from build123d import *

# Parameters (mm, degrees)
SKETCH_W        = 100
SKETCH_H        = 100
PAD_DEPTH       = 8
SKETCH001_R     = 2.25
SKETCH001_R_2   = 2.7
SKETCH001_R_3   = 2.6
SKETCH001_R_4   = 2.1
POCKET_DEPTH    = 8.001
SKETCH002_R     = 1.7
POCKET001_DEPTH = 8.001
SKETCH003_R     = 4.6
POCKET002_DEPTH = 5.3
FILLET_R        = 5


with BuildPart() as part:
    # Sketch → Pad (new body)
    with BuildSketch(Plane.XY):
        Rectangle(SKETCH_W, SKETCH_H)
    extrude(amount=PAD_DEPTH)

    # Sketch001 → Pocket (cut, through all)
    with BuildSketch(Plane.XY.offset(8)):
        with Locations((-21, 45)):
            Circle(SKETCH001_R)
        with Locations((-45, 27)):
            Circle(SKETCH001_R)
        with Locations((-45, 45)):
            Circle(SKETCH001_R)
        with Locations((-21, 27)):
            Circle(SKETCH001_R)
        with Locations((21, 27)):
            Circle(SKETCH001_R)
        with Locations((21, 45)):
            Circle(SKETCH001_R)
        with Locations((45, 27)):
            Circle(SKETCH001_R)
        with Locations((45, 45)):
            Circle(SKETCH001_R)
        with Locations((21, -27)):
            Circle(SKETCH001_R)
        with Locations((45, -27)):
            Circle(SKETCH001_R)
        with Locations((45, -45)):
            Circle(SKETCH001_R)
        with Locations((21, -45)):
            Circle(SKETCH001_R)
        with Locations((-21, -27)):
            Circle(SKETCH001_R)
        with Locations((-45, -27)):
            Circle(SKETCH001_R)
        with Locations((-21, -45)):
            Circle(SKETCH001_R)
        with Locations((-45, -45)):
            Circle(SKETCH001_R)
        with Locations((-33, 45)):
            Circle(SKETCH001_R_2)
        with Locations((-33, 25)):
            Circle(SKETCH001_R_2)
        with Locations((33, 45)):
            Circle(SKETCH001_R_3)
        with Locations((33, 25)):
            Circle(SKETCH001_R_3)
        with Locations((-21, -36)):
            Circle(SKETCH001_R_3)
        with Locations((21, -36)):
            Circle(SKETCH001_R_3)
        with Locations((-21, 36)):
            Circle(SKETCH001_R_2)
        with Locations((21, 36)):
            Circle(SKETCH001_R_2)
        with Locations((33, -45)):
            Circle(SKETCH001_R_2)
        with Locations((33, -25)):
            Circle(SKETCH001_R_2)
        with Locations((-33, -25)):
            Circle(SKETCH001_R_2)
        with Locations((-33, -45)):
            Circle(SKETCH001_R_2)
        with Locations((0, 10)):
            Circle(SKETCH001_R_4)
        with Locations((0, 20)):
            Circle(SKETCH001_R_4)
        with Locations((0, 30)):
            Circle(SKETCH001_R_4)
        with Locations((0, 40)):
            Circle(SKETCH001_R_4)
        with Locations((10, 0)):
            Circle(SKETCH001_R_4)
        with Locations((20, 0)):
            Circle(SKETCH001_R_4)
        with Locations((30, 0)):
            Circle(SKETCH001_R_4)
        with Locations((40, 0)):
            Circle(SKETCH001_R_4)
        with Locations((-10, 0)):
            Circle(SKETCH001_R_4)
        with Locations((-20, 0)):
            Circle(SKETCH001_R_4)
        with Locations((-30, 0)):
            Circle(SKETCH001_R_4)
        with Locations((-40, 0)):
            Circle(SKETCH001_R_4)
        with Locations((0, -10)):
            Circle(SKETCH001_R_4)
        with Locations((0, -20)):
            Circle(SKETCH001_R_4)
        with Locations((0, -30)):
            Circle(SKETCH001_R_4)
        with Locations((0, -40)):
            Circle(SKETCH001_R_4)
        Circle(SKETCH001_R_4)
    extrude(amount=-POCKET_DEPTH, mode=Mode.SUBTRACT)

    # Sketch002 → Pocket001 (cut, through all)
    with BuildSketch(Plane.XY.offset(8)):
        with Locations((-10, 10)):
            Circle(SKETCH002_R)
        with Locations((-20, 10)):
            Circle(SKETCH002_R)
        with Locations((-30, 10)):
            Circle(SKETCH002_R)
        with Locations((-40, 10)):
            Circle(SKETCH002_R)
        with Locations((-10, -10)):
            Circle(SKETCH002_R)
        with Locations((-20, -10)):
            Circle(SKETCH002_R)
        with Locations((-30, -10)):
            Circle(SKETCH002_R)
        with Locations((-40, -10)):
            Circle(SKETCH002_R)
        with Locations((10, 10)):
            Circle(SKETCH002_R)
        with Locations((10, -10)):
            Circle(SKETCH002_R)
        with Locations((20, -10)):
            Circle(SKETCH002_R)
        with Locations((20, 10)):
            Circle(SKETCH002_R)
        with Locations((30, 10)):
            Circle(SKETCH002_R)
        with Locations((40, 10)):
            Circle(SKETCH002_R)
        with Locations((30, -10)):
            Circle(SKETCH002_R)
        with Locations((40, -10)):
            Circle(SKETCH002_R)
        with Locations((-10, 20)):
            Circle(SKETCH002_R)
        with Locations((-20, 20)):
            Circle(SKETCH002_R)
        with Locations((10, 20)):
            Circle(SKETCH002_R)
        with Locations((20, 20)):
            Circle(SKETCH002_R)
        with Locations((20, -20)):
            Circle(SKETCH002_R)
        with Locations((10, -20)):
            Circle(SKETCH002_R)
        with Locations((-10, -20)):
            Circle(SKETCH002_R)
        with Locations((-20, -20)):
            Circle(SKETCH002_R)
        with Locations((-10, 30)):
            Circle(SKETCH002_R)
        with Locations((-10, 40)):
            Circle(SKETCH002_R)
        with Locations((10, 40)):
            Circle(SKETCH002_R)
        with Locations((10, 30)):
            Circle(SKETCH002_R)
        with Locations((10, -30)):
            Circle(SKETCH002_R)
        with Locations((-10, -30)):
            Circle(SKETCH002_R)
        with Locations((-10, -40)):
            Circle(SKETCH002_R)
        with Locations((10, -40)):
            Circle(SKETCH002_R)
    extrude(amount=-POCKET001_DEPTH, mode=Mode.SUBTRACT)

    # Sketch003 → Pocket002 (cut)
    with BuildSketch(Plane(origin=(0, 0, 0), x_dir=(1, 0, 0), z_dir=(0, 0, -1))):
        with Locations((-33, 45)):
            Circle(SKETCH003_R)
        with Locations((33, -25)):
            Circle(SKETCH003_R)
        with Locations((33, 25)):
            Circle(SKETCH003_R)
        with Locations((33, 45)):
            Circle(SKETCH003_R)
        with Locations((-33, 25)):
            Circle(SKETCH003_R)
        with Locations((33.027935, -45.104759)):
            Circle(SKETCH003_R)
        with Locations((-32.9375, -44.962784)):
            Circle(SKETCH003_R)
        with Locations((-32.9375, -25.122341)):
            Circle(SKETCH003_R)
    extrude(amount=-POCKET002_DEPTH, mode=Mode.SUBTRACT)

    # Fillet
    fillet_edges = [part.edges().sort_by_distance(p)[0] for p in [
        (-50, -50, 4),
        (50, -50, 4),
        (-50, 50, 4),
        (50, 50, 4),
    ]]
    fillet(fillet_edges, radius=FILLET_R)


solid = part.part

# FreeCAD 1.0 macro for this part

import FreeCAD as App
import Part
import Sketcher

V = App.Vector
Q = App.Units.Quantity


def edges_at(feature, points):
    """Names of the edges that pass closest to the given points."""
    edges = feature.Shape.Edges
    near = lambda p: min(range(len(edges)), key=lambda i: edges[i].distToShape(Part.Vertex(*p))[0])
    return sorted({f"Edge{near(p) + 1}" for p in points})


def add_polygon(sketch, points):
    """Adds a closed chain of lines whose ends are joined by coincident constraints."""
    first, n = sketch.GeometryCount, len(points)
    for a, b in zip(points, points[1:] + points[:1]):
        sketch.addGeometry(Part.LineSegment(App.Vector(*a, 0), App.Vector(*b, 0)), False)
    for i in range(n):
        sketch.addConstraint(Sketcher.Constraint("Coincident", first + i, 2, first + (i + 1) % n, 1))

doc = App.newDocument("Part")
body = doc.addObject("PartDesign::Body", "Body")

sketch1 = body.newObject("Sketcher::SketchObject", "Sketch")
sketch1.AttachmentSupport = (doc.getObject("XY_Plane"), [""])
sketch1.MapMode = "FlatFace"
add_polygon(sketch1, [(-50, 50), (-50, -50), (50, -50), (50, 50)])
sketch1.addConstraint([
    Sketcher.Constraint("Vertical", 0),
    Sketcher.Constraint("Horizontal", 1),
    Sketcher.Constraint("Vertical", 2),
    Sketcher.Constraint("Horizontal", 3),
    Sketcher.Constraint("Symmetric", 0, 2, 2, 2, -1, 1),
    Sketcher.Constraint("Equal", 3, 0),
    Sketcher.Constraint("DistanceX", 1, 1, 1, 2, Q("100 mm")),
])
pad1 = body.newObject("PartDesign::Pad", "Pad")
pad1.Profile = sketch1
pad1.Length = 8

sketch2 = body.newObject("Sketcher::SketchObject", "Sketch001")
sketch2.AttachmentSupport = (doc.getObject("XY_Plane"), [""])
sketch2.MapMode = "FlatFace"
sketch2.AttachmentOffset = App.Placement(V(0, 0, 8), App.Rotation())
sketch2.addGeometry([
    Part.Circle(V(-21, 45, 0), V(0, 0, 1), 2.25),
    Part.Circle(V(-45, 27, 0), V(0, 0, 1), 2.25),
    Part.Circle(V(-45, 45, 0), V(0, 0, 1), 2.25),
    Part.Circle(V(-21, 27, 0), V(0, 0, 1), 2.25),
    Part.Circle(V(21, 27, 0), V(0, 0, 1), 2.25),
    Part.Circle(V(21, 45, 0), V(0, 0, 1), 2.25),
    Part.Circle(V(45, 27, 0), V(0, 0, 1), 2.25),
    Part.Circle(V(45, 45, 0), V(0, 0, 1), 2.25),
    Part.Circle(V(21, -27, 0), V(0, 0, 1), 2.25),
    Part.Circle(V(45, -27, 0), V(0, 0, 1), 2.25),
    Part.Circle(V(45, -45, 0), V(0, 0, 1), 2.25),
    Part.Circle(V(21, -45, 0), V(0, 0, 1), 2.25),
    Part.Circle(V(-21, -27, 0), V(0, 0, 1), 2.25),
    Part.Circle(V(-45, -27, 0), V(0, 0, 1), 2.25),
    Part.Circle(V(-21, -45, 0), V(0, 0, 1), 2.25),
    Part.Circle(V(-45, -45, 0), V(0, 0, 1), 2.25),
    Part.Circle(V(-33, 45, 0), V(0, 0, 1), 2.7),
    Part.Circle(V(-33, 25, 0), V(0, 0, 1), 2.7),
    Part.Circle(V(33, 45, 0), V(0, 0, 1), 2.6),
    Part.Circle(V(33, 25, 0), V(0, 0, 1), 2.6),
    Part.Circle(V(-21, -36, 0), V(0, 0, 1), 2.6),
    Part.Circle(V(21, -36, 0), V(0, 0, 1), 2.6),
    Part.Circle(V(-21, 36, 0), V(0, 0, 1), 2.7),
    Part.Circle(V(21, 36, 0), V(0, 0, 1), 2.7),
    Part.Circle(V(33, -45, 0), V(0, 0, 1), 2.7),
    Part.Circle(V(33, -25, 0), V(0, 0, 1), 2.7),
    Part.Circle(V(-33, -25, 0), V(0, 0, 1), 2.7),
    Part.Circle(V(-33, -45, 0), V(0, 0, 1), 2.7),
    Part.Circle(V(0, 10, 0), V(0, 0, 1), 2.1),
    Part.Circle(V(0, 20, 0), V(0, 0, 1), 2.1),
    Part.Circle(V(0, 30, 0), V(0, 0, 1), 2.1),
    Part.Circle(V(0, 40, 0), V(0, 0, 1), 2.1),
    Part.Circle(V(10, 0, 0), V(0, 0, 1), 2.1),
    Part.Circle(V(20, 0, 0), V(0, 0, 1), 2.1),
    Part.Circle(V(30, 0, 0), V(0, 0, 1), 2.1),
    Part.Circle(V(40, 0, 0), V(0, 0, 1), 2.1),
    Part.Circle(V(-10, 0, 0), V(0, 0, 1), 2.1),
    Part.Circle(V(-20, 0, 0), V(0, 0, 1), 2.1),
    Part.Circle(V(-30, 0, 0), V(0, 0, 1), 2.1),
    Part.Circle(V(-40, 0, 0), V(0, 0, 1), 2.1),
    Part.Circle(V(0, -10, 0), V(0, 0, 1), 2.1),
    Part.Circle(V(0, -20, 0), V(0, 0, 1), 2.1),
    Part.Circle(V(0, -30, 0), V(0, 0, 1), 2.1),
    Part.Circle(V(0, -40, 0), V(0, 0, 1), 2.1),
    Part.Circle(V(0, 0, 0), V(0, 0, 1), 2.1),
], False)
sketch2.addConstraint([
    Sketcher.Constraint("Coincident", 44, 3, -1, 1),
    Sketcher.Constraint("Equal", 0, 1),
    Sketcher.Constraint("Equal", 1, 2),
    Sketcher.Constraint("Equal", 2, 3),
    Sketcher.Constraint("Equal", 3, 4),
    Sketcher.Constraint("Equal", 4, 5),
    Sketcher.Constraint("Equal", 5, 6),
    Sketcher.Constraint("Equal", 6, 7),
    Sketcher.Constraint("Equal", 7, 8),
    Sketcher.Constraint("Equal", 8, 9),
    Sketcher.Constraint("Equal", 9, 10),
    Sketcher.Constraint("Equal", 10, 11),
    Sketcher.Constraint("Equal", 11, 12),
    Sketcher.Constraint("Equal", 12, 13),
    Sketcher.Constraint("Equal", 13, 14),
    Sketcher.Constraint("Equal", 14, 15),
    Sketcher.Constraint("Equal", 16, 17),
    Sketcher.Constraint("Equal", 18, 19),
    Sketcher.Constraint("Equal", 19, 20),
    Sketcher.Constraint("Equal", 20, 21),
    Sketcher.Constraint("Equal", 17, 22),
    Sketcher.Constraint("Equal", 22, 23),
    Sketcher.Constraint("Equal", 23, 24),
    Sketcher.Constraint("Equal", 24, 25),
    Sketcher.Constraint("Equal", 25, 26),
    Sketcher.Constraint("Equal", 26, 27),
    Sketcher.Constraint("Equal", 28, 29),
    Sketcher.Constraint("Equal", 29, 30),
    Sketcher.Constraint("Equal", 30, 31),
    Sketcher.Constraint("Equal", 31, 32),
    Sketcher.Constraint("Equal", 32, 33),
    Sketcher.Constraint("Equal", 33, 34),
    Sketcher.Constraint("Equal", 34, 35),
    Sketcher.Constraint("Equal", 35, 36),
    Sketcher.Constraint("Equal", 36, 37),
    Sketcher.Constraint("Equal", 37, 38),
    Sketcher.Constraint("Equal", 38, 39),
    Sketcher.Constraint("Equal", 39, 40),
    Sketcher.Constraint("Equal", 40, 41),
    Sketcher.Constraint("Equal", 41, 42),
    Sketcher.Constraint("Equal", 42, 43),
    Sketcher.Constraint("Equal", 43, 44),
    Sketcher.Constraint("Symmetric", 3, 3, 8, 3, -1, 1),
    Sketcher.Constraint("Symmetric", 1, 3, 9, 3, -1, 1),
    Sketcher.Constraint("Symmetric", 2, 3, 10, 3, -1, 1),
    Sketcher.Constraint("Symmetric", 0, 3, 11, 3, -1, 1),
    Sketcher.Constraint("Symmetric", 4, 3, 12, 3, -1, 1),
    Sketcher.Constraint("Symmetric", 6, 3, 13, 3, -1, 1),
    Sketcher.Constraint("Symmetric", 5, 3, 14, 3, -1, 1),
    Sketcher.Constraint("Symmetric", 7, 3, 15, 3, -1, 1),
    Sketcher.Constraint("Symmetric", 21, 3, 22, 3, -1, 1),
    Sketcher.Constraint("Symmetric", 20, 3, 23, 3, -1, 1),
    Sketcher.Constraint("Symmetric", 16, 3, 24, 3, -1, 1),
    Sketcher.Constraint("Symmetric", 17, 3, 25, 3, -1, 1),
    Sketcher.Constraint("Symmetric", 19, 3, 26, 3, -1, 1),
    Sketcher.Constraint("Symmetric", 18, 3, 27, 3, -1, 1),
    Sketcher.Constraint("Symmetric", 32, 3, 36, 3, -1, 1),
    Sketcher.Constraint("Symmetric", 33, 3, 37, 3, -1, 1),
    Sketcher.Constraint("Symmetric", 34, 3, 38, 3, -1, 1),
    Sketcher.Constraint("Symmetric", 35, 3, 39, 3, -1, 1),
    Sketcher.Constraint("Symmetric", 28, 3, 40, 3, -1, 1),
    Sketcher.Constraint("Symmetric", 29, 3, 41, 3, -1, 1),
    Sketcher.Constraint("Symmetric", 30, 3, 42, 3, -1, 1),
    Sketcher.Constraint("Symmetric", 31, 3, 43, 3, -1, 1),
    Sketcher.Constraint("Symmetric", 3, 3, 4, 3, -2),
    Sketcher.Constraint("Symmetric", 0, 3, 5, 3, -2),
    Sketcher.Constraint("Symmetric", 1, 3, 6, 3, -2),
    Sketcher.Constraint("Symmetric", 2, 3, 7, 3, -2),
    Sketcher.Constraint("Symmetric", 16, 3, 18, 3, -2),
    Sketcher.Constraint("Symmetric", 17, 3, 19, 3, -2),
    Sketcher.Constraint("Symmetric", 20, 3, 21, 3, -2),
    Sketcher.Constraint("PointOnObject", 28, 3, -2),
    Sketcher.Constraint("PointOnObject", 29, 3, -2),
    Sketcher.Constraint("PointOnObject", 30, 3, -2),
    Sketcher.Constraint("PointOnObject", 31, 3, -2),
    Sketcher.Constraint("PointOnObject", 32, 3, -1),
    Sketcher.Constraint("PointOnObject", 33, 3, -1),
    Sketcher.Constraint("PointOnObject", 34, 3, -1),
    Sketcher.Constraint("PointOnObject", 35, 3, -1),
    Sketcher.Constraint("Horizontal", 0, 3, 2, 3),
    Sketcher.Constraint("Horizontal", 1, 3, 3, 3),
    Sketcher.Constraint("Horizontal", 7, 3, 16, 3),
    Sketcher.Constraint("Vertical", 1, 3, 2, 3),
    Sketcher.Constraint("Vertical", 0, 3, 3, 3),
    Sketcher.Constraint("Vertical", 16, 3, 17, 3),
    Sketcher.Constraint("Vertical", 14, 3, 20, 3),
    Sketcher.Constraint("Diameter", 0, Q("4.5 mm")),
    Sketcher.Constraint("Diameter", 16, Q("5.4 mm")),
    Sketcher.Constraint("Diameter", 18, Q("5.2 mm")),
    Sketcher.Constraint("Diameter", 28, Q("4.2 mm")),
    Sketcher.Constraint("DistanceX", 0, 3, -1, 1, Q("21 mm")),
    Sketcher.Constraint("DistanceY", -1, 1, 0, 3, Q("45 mm")),
    Sketcher.Constraint("DistanceX", 1, 3, -1, 1, Q("45 mm")),
    Sketcher.Constraint("DistanceY", -1, 1, 1, 3, Q("27 mm")),
    Sketcher.Constraint("DistanceX", 16, 3, -1, 1, Q("33 mm")),
    Sketcher.Constraint("DistanceY", -1, 1, 17, 3, Q("25 mm")),
    Sketcher.Constraint("DistanceY", 20, 3, -1, 1, Q("36 mm")),
    Sketcher.Constraint("DistanceY", -1, 1, 28, 3, Q("10 mm")),
    Sketcher.Constraint("DistanceY", -1, 1, 29, 3, Q("20 mm")),
    Sketcher.Constraint("DistanceY", -1, 1, 30, 3, Q("30 mm")),
    Sketcher.Constraint("DistanceY", -1, 1, 31, 3, Q("40 mm")),
    Sketcher.Constraint("DistanceX", -1, 1, 32, 3, Q("10 mm")),
    Sketcher.Constraint("DistanceX", -1, 1, 33, 3, Q("20 mm")),
    Sketcher.Constraint("DistanceX", -1, 1, 34, 3, Q("30 mm")),
    Sketcher.Constraint("DistanceX", -1, 1, 35, 3, Q("40 mm")),
])
pocket1 = body.newObject("PartDesign::Pocket", "Pocket")
pocket1.Profile = sketch2
pocket1.Type = "ThroughAll"

sketch3 = body.newObject("Sketcher::SketchObject", "Sketch002")
sketch3.AttachmentSupport = (doc.getObject("XY_Plane"), [""])
sketch3.MapMode = "FlatFace"
sketch3.AttachmentOffset = App.Placement(V(0, 0, 8), App.Rotation())
sketch3.addGeometry([
    Part.Circle(V(-10, 10, 0), V(0, 0, 1), 1.7),
    Part.Circle(V(-20, 10, 0), V(0, 0, 1), 1.7),
    Part.Circle(V(-30, 10, 0), V(0, 0, 1), 1.7),
    Part.Circle(V(-40, 10, 0), V(0, 0, 1), 1.7),
    Part.Circle(V(-10, -10, 0), V(0, 0, 1), 1.7),
    Part.Circle(V(-20, -10, 0), V(0, 0, 1), 1.7),
    Part.Circle(V(-30, -10, 0), V(0, 0, 1), 1.7),
    Part.Circle(V(-40, -10, 0), V(0, 0, 1), 1.7),
    Part.Circle(V(10, 10, 0), V(0, 0, 1), 1.7),
    Part.Circle(V(10, -10, 0), V(0, 0, 1), 1.7),
    Part.Circle(V(20, -10, 0), V(0, 0, 1), 1.7),
    Part.Circle(V(20, 10, 0), V(0, 0, 1), 1.7),
    Part.Circle(V(30, 10, 0), V(0, 0, 1), 1.7),
    Part.Circle(V(40, 10, 0), V(0, 0, 1), 1.7),
    Part.Circle(V(30, -10, 0), V(0, 0, 1), 1.7),
    Part.Circle(V(40, -10, 0), V(0, 0, 1), 1.7),
    Part.Circle(V(-10, 20, 0), V(0, 0, 1), 1.7),
    Part.Circle(V(-20, 20, 0), V(0, 0, 1), 1.7),
    Part.Circle(V(10, 20, 0), V(0, 0, 1), 1.7),
    Part.Circle(V(20, 20, 0), V(0, 0, 1), 1.7),
    Part.Circle(V(20, -20, 0), V(0, 0, 1), 1.7),
    Part.Circle(V(10, -20, 0), V(0, 0, 1), 1.7),
    Part.Circle(V(-10, -20, 0), V(0, 0, 1), 1.7),
    Part.Circle(V(-20, -20, 0), V(0, 0, 1), 1.7),
    Part.Circle(V(-10, 30, 0), V(0, 0, 1), 1.7),
    Part.Circle(V(-10, 40, 0), V(0, 0, 1), 1.7),
    Part.Circle(V(10, 40, 0), V(0, 0, 1), 1.7),
    Part.Circle(V(10, 30, 0), V(0, 0, 1), 1.7),
    Part.Circle(V(10, -30, 0), V(0, 0, 1), 1.7),
    Part.Circle(V(-10, -30, 0), V(0, 0, 1), 1.7),
    Part.Circle(V(-10, -40, 0), V(0, 0, 1), 1.7),
    Part.Circle(V(10, -40, 0), V(0, 0, 1), 1.7),
], False)
sketch3.addConstraint([
    Sketcher.Constraint("Equal", 0, 1),
    Sketcher.Constraint("Equal", 1, 2),
    Sketcher.Constraint("Equal", 2, 3),
    Sketcher.Constraint("Equal", 3, 4),
    Sketcher.Constraint("Equal", 4, 5),
    Sketcher.Constraint("Equal", 5, 6),
    Sketcher.Constraint("Equal", 6, 7),
    Sketcher.Constraint("Equal", 7, 8),
    Sketcher.Constraint("Equal", 8, 9),
    Sketcher.Constraint("Equal", 9, 10),
    Sketcher.Constraint("Equal", 10, 11),
    Sketcher.Constraint("Equal", 11, 12),
    Sketcher.Constraint("Equal", 12, 13),
    Sketcher.Constraint("Equal", 13, 14),
    Sketcher.Constraint("Equal", 14, 15),
    Sketcher.Constraint("Equal", 15, 16),
    Sketcher.Constraint("Equal", 16, 17),
    Sketcher.Constraint("Equal", 17, 18),
    Sketcher.Constraint("Equal", 18, 19),
    Sketcher.Constraint("Equal", 19, 20),
    Sketcher.Constraint("Equal", 20, 21),
    Sketcher.Constraint("Equal", 21, 22),
    Sketcher.Constraint("Equal", 22, 23),
    Sketcher.Constraint("Equal", 23, 24),
    Sketcher.Constraint("Equal", 24, 25),
    Sketcher.Constraint("Equal", 25, 26),
    Sketcher.Constraint("Equal", 26, 27),
    Sketcher.Constraint("Equal", 27, 28),
    Sketcher.Constraint("Equal", 28, 29),
    Sketcher.Constraint("Equal", 29, 30),
    Sketcher.Constraint("Equal", 30, 31),
    Sketcher.Constraint("Symmetric", 4, 3, 8, 3, -1, 1),
    Sketcher.Constraint("Symmetric", 0, 3, 9, 3, -1, 1),
    Sketcher.Constraint("Symmetric", 1, 3, 10, 3, -1, 1),
    Sketcher.Constraint("Symmetric", 5, 3, 11, 3, -1, 1),
    Sketcher.Constraint("Symmetric", 6, 3, 12, 3, -1, 1),
    Sketcher.Constraint("Symmetric", 7, 3, 13, 3, -1, 1),
    Sketcher.Constraint("Symmetric", 2, 3, 14, 3, -1, 1),
    Sketcher.Constraint("Symmetric", 3, 3, 15, 3, -1, 1),
    Sketcher.Constraint("Symmetric", 17, 3, 20, 3, -1, 1),
    Sketcher.Constraint("Symmetric", 16, 3, 21, 3, -1, 1),
    Sketcher.Constraint("Symmetric", 18, 3, 22, 3, -1, 1),
    Sketcher.Constraint("Symmetric", 19, 3, 23, 3, -1, 1),
    Sketcher.Constraint("Symmetric", 24, 3, 28, 3, -1, 1),
    Sketcher.Constraint("Symmetric", 27, 3, 29, 3, -1, 1),
    Sketcher.Constraint("Symmetric", 26, 3, 30, 3, -1, 1),
    Sketcher.Constraint("Symmetric", 25, 3, 31, 3, -1, 1),
    Sketcher.Constraint("Symmetric", 0, 3, 8, 3, -2),
    Sketcher.Constraint("Symmetric", 5, 3, 10, 3, -2),
    Sketcher.Constraint("Symmetric", 2, 3, 12, 3, -2),
    Sketcher.Constraint("Symmetric", 3, 3, 13, 3, -2),
    Sketcher.Constraint("Symmetric", 16, 3, 18, 3, -2),
    Sketcher.Constraint("Symmetric", 17, 3, 19, 3, -2),
    Sketcher.Constraint("Symmetric", 25, 3, 26, 3, -2),
    Sketcher.Constraint("Symmetric", 24, 3, 27, 3, -2),
    Sketcher.Constraint("Horizontal", 0, 3, 1, 3),
    Sketcher.Constraint("Horizontal", 1, 3, 2, 3),
    Sketcher.Constraint("Horizontal", 2, 3, 3, 3),
    Sketcher.Constraint("Horizontal", 16, 3, 17, 3),
    Sketcher.Constraint("Vertical", 4, 3, 16, 3),
    Sketcher.Constraint("Vertical", 5, 3, 17, 3),
    Sketcher.Constraint("Vertical", 22, 3, 24, 3),
    Sketcher.Constraint("Vertical", 24, 3, 25, 3),
    Sketcher.Constraint("Diameter", 0, Q("3.4 mm")),
    Sketcher.Constraint("DistanceX", 0, 3, -1, 1, Q("10 mm")),
    Sketcher.Constraint("DistanceY", -1, 1, 0, 3, Q("10 mm")),
    Sketcher.Constraint("DistanceX", 1, 3, -1, 1, Q("20 mm")),
    Sketcher.Constraint("DistanceX", 2, 3, -1, 1, Q("30 mm")),
    Sketcher.Constraint("DistanceX", 3, 3, -1, 1, Q("40 mm")),
    Sketcher.Constraint("DistanceY", -1, 1, 16, 3, Q("20 mm")),
    Sketcher.Constraint("DistanceY", -1, 1, 24, 3, Q("30 mm")),
    Sketcher.Constraint("DistanceY", -1, 1, 25, 3, Q("40 mm")),
])
pocket2 = body.newObject("PartDesign::Pocket", "Pocket001")
pocket2.Profile = sketch3
pocket2.Type = "ThroughAll"

sketch4 = body.newObject("Sketcher::SketchObject", "Sketch003")
sketch4.AttachmentSupport = (doc.getObject("XY_Plane"), [""])
sketch4.MapMode = "FlatFace"
sketch4.addGeometry([
    Part.Circle(V(-33, -45, 0), V(0, 0, 1), 4.6),
    Part.Circle(V(33, 25, 0), V(0, 0, 1), 4.6),
    Part.Circle(V(33, -25, 0), V(0, 0, 1), 4.6),
    Part.Circle(V(33, -45, 0), V(0, 0, 1), 4.6),
    Part.Circle(V(-33, -25, 0), V(0, 0, 1), 4.6),
    Part.Circle(V(33.027935, 45.104759, 0), V(0, 0, 1), 4.6),
    Part.Circle(V(-32.9375, 44.962784, 0), V(0, 0, 1), 4.6),
    Part.Circle(V(-32.9375, 25.122341, 0), V(0, 0, 1), 4.6),
], False)
sketch4.addConstraint([
    Sketcher.Constraint("Equal", 0, 1),
    Sketcher.Constraint("Equal", 1, 2),
    Sketcher.Constraint("Equal", 2, 3),
    Sketcher.Constraint("Equal", 3, 4),
    Sketcher.Constraint("Equal", 4, 5),
    Sketcher.Constraint("Equal", 5, 6),
    Sketcher.Constraint("Equal", 6, 7),
    Sketcher.Constraint("Symmetric", 1, 3, 4, 3, -1, 1),
    Sketcher.Constraint("Symmetric", 0, 3, 3, 3, -2),
    Sketcher.Constraint("Symmetric", 2, 3, 4, 3, -2),
    Sketcher.Constraint("Vertical", 2, 3, 3, 3),
    Sketcher.Constraint("Vertical", 6, 3, 7, 3),
    Sketcher.Constraint("Diameter", 0, Q("9.2 mm")),
    Sketcher.Constraint("DistanceX", 0, 3, -1, 1, Q("33 mm")),
    Sketcher.Constraint("DistanceY", 0, 3, -1, 1, Q("45 mm")),
    Sketcher.Constraint("DistanceY", -1, 1, 1, 3, Q("25 mm")),
    Sketcher.Constraint("DistanceX", 6, 3, -1, 1, Q("32.9375 mm")),
    Sketcher.Constraint("DistanceY", -1, 1, 5, 3, Q("45.104759 mm")),
    Sketcher.Constraint("DistanceY", -1, 1, 7, 3, Q("25.122341 mm")),
    Sketcher.Constraint("DistanceX", -1, 1, 5, 3, Q("33.027935 mm")),
    Sketcher.Constraint("DistanceY", -1, 1, 6, 3, Q("44.962784 mm")),
])
pocket3 = body.newObject("PartDesign::Pocket", "Pocket002")
pocket3.Profile = sketch4
pocket3.Length = 5.3
pocket3.Reversed = True
doc.recompute()

fillet = body.newObject("PartDesign::Fillet", "Fillet")
fillet.Base = (pocket3, edges_at(pocket3, [
    (-50, -50, 4),
    (50, -50, 4),
    (-50, 50, 4),
    (50, 50, 4),
]))
fillet.Radius = 5

doc.recompute()
